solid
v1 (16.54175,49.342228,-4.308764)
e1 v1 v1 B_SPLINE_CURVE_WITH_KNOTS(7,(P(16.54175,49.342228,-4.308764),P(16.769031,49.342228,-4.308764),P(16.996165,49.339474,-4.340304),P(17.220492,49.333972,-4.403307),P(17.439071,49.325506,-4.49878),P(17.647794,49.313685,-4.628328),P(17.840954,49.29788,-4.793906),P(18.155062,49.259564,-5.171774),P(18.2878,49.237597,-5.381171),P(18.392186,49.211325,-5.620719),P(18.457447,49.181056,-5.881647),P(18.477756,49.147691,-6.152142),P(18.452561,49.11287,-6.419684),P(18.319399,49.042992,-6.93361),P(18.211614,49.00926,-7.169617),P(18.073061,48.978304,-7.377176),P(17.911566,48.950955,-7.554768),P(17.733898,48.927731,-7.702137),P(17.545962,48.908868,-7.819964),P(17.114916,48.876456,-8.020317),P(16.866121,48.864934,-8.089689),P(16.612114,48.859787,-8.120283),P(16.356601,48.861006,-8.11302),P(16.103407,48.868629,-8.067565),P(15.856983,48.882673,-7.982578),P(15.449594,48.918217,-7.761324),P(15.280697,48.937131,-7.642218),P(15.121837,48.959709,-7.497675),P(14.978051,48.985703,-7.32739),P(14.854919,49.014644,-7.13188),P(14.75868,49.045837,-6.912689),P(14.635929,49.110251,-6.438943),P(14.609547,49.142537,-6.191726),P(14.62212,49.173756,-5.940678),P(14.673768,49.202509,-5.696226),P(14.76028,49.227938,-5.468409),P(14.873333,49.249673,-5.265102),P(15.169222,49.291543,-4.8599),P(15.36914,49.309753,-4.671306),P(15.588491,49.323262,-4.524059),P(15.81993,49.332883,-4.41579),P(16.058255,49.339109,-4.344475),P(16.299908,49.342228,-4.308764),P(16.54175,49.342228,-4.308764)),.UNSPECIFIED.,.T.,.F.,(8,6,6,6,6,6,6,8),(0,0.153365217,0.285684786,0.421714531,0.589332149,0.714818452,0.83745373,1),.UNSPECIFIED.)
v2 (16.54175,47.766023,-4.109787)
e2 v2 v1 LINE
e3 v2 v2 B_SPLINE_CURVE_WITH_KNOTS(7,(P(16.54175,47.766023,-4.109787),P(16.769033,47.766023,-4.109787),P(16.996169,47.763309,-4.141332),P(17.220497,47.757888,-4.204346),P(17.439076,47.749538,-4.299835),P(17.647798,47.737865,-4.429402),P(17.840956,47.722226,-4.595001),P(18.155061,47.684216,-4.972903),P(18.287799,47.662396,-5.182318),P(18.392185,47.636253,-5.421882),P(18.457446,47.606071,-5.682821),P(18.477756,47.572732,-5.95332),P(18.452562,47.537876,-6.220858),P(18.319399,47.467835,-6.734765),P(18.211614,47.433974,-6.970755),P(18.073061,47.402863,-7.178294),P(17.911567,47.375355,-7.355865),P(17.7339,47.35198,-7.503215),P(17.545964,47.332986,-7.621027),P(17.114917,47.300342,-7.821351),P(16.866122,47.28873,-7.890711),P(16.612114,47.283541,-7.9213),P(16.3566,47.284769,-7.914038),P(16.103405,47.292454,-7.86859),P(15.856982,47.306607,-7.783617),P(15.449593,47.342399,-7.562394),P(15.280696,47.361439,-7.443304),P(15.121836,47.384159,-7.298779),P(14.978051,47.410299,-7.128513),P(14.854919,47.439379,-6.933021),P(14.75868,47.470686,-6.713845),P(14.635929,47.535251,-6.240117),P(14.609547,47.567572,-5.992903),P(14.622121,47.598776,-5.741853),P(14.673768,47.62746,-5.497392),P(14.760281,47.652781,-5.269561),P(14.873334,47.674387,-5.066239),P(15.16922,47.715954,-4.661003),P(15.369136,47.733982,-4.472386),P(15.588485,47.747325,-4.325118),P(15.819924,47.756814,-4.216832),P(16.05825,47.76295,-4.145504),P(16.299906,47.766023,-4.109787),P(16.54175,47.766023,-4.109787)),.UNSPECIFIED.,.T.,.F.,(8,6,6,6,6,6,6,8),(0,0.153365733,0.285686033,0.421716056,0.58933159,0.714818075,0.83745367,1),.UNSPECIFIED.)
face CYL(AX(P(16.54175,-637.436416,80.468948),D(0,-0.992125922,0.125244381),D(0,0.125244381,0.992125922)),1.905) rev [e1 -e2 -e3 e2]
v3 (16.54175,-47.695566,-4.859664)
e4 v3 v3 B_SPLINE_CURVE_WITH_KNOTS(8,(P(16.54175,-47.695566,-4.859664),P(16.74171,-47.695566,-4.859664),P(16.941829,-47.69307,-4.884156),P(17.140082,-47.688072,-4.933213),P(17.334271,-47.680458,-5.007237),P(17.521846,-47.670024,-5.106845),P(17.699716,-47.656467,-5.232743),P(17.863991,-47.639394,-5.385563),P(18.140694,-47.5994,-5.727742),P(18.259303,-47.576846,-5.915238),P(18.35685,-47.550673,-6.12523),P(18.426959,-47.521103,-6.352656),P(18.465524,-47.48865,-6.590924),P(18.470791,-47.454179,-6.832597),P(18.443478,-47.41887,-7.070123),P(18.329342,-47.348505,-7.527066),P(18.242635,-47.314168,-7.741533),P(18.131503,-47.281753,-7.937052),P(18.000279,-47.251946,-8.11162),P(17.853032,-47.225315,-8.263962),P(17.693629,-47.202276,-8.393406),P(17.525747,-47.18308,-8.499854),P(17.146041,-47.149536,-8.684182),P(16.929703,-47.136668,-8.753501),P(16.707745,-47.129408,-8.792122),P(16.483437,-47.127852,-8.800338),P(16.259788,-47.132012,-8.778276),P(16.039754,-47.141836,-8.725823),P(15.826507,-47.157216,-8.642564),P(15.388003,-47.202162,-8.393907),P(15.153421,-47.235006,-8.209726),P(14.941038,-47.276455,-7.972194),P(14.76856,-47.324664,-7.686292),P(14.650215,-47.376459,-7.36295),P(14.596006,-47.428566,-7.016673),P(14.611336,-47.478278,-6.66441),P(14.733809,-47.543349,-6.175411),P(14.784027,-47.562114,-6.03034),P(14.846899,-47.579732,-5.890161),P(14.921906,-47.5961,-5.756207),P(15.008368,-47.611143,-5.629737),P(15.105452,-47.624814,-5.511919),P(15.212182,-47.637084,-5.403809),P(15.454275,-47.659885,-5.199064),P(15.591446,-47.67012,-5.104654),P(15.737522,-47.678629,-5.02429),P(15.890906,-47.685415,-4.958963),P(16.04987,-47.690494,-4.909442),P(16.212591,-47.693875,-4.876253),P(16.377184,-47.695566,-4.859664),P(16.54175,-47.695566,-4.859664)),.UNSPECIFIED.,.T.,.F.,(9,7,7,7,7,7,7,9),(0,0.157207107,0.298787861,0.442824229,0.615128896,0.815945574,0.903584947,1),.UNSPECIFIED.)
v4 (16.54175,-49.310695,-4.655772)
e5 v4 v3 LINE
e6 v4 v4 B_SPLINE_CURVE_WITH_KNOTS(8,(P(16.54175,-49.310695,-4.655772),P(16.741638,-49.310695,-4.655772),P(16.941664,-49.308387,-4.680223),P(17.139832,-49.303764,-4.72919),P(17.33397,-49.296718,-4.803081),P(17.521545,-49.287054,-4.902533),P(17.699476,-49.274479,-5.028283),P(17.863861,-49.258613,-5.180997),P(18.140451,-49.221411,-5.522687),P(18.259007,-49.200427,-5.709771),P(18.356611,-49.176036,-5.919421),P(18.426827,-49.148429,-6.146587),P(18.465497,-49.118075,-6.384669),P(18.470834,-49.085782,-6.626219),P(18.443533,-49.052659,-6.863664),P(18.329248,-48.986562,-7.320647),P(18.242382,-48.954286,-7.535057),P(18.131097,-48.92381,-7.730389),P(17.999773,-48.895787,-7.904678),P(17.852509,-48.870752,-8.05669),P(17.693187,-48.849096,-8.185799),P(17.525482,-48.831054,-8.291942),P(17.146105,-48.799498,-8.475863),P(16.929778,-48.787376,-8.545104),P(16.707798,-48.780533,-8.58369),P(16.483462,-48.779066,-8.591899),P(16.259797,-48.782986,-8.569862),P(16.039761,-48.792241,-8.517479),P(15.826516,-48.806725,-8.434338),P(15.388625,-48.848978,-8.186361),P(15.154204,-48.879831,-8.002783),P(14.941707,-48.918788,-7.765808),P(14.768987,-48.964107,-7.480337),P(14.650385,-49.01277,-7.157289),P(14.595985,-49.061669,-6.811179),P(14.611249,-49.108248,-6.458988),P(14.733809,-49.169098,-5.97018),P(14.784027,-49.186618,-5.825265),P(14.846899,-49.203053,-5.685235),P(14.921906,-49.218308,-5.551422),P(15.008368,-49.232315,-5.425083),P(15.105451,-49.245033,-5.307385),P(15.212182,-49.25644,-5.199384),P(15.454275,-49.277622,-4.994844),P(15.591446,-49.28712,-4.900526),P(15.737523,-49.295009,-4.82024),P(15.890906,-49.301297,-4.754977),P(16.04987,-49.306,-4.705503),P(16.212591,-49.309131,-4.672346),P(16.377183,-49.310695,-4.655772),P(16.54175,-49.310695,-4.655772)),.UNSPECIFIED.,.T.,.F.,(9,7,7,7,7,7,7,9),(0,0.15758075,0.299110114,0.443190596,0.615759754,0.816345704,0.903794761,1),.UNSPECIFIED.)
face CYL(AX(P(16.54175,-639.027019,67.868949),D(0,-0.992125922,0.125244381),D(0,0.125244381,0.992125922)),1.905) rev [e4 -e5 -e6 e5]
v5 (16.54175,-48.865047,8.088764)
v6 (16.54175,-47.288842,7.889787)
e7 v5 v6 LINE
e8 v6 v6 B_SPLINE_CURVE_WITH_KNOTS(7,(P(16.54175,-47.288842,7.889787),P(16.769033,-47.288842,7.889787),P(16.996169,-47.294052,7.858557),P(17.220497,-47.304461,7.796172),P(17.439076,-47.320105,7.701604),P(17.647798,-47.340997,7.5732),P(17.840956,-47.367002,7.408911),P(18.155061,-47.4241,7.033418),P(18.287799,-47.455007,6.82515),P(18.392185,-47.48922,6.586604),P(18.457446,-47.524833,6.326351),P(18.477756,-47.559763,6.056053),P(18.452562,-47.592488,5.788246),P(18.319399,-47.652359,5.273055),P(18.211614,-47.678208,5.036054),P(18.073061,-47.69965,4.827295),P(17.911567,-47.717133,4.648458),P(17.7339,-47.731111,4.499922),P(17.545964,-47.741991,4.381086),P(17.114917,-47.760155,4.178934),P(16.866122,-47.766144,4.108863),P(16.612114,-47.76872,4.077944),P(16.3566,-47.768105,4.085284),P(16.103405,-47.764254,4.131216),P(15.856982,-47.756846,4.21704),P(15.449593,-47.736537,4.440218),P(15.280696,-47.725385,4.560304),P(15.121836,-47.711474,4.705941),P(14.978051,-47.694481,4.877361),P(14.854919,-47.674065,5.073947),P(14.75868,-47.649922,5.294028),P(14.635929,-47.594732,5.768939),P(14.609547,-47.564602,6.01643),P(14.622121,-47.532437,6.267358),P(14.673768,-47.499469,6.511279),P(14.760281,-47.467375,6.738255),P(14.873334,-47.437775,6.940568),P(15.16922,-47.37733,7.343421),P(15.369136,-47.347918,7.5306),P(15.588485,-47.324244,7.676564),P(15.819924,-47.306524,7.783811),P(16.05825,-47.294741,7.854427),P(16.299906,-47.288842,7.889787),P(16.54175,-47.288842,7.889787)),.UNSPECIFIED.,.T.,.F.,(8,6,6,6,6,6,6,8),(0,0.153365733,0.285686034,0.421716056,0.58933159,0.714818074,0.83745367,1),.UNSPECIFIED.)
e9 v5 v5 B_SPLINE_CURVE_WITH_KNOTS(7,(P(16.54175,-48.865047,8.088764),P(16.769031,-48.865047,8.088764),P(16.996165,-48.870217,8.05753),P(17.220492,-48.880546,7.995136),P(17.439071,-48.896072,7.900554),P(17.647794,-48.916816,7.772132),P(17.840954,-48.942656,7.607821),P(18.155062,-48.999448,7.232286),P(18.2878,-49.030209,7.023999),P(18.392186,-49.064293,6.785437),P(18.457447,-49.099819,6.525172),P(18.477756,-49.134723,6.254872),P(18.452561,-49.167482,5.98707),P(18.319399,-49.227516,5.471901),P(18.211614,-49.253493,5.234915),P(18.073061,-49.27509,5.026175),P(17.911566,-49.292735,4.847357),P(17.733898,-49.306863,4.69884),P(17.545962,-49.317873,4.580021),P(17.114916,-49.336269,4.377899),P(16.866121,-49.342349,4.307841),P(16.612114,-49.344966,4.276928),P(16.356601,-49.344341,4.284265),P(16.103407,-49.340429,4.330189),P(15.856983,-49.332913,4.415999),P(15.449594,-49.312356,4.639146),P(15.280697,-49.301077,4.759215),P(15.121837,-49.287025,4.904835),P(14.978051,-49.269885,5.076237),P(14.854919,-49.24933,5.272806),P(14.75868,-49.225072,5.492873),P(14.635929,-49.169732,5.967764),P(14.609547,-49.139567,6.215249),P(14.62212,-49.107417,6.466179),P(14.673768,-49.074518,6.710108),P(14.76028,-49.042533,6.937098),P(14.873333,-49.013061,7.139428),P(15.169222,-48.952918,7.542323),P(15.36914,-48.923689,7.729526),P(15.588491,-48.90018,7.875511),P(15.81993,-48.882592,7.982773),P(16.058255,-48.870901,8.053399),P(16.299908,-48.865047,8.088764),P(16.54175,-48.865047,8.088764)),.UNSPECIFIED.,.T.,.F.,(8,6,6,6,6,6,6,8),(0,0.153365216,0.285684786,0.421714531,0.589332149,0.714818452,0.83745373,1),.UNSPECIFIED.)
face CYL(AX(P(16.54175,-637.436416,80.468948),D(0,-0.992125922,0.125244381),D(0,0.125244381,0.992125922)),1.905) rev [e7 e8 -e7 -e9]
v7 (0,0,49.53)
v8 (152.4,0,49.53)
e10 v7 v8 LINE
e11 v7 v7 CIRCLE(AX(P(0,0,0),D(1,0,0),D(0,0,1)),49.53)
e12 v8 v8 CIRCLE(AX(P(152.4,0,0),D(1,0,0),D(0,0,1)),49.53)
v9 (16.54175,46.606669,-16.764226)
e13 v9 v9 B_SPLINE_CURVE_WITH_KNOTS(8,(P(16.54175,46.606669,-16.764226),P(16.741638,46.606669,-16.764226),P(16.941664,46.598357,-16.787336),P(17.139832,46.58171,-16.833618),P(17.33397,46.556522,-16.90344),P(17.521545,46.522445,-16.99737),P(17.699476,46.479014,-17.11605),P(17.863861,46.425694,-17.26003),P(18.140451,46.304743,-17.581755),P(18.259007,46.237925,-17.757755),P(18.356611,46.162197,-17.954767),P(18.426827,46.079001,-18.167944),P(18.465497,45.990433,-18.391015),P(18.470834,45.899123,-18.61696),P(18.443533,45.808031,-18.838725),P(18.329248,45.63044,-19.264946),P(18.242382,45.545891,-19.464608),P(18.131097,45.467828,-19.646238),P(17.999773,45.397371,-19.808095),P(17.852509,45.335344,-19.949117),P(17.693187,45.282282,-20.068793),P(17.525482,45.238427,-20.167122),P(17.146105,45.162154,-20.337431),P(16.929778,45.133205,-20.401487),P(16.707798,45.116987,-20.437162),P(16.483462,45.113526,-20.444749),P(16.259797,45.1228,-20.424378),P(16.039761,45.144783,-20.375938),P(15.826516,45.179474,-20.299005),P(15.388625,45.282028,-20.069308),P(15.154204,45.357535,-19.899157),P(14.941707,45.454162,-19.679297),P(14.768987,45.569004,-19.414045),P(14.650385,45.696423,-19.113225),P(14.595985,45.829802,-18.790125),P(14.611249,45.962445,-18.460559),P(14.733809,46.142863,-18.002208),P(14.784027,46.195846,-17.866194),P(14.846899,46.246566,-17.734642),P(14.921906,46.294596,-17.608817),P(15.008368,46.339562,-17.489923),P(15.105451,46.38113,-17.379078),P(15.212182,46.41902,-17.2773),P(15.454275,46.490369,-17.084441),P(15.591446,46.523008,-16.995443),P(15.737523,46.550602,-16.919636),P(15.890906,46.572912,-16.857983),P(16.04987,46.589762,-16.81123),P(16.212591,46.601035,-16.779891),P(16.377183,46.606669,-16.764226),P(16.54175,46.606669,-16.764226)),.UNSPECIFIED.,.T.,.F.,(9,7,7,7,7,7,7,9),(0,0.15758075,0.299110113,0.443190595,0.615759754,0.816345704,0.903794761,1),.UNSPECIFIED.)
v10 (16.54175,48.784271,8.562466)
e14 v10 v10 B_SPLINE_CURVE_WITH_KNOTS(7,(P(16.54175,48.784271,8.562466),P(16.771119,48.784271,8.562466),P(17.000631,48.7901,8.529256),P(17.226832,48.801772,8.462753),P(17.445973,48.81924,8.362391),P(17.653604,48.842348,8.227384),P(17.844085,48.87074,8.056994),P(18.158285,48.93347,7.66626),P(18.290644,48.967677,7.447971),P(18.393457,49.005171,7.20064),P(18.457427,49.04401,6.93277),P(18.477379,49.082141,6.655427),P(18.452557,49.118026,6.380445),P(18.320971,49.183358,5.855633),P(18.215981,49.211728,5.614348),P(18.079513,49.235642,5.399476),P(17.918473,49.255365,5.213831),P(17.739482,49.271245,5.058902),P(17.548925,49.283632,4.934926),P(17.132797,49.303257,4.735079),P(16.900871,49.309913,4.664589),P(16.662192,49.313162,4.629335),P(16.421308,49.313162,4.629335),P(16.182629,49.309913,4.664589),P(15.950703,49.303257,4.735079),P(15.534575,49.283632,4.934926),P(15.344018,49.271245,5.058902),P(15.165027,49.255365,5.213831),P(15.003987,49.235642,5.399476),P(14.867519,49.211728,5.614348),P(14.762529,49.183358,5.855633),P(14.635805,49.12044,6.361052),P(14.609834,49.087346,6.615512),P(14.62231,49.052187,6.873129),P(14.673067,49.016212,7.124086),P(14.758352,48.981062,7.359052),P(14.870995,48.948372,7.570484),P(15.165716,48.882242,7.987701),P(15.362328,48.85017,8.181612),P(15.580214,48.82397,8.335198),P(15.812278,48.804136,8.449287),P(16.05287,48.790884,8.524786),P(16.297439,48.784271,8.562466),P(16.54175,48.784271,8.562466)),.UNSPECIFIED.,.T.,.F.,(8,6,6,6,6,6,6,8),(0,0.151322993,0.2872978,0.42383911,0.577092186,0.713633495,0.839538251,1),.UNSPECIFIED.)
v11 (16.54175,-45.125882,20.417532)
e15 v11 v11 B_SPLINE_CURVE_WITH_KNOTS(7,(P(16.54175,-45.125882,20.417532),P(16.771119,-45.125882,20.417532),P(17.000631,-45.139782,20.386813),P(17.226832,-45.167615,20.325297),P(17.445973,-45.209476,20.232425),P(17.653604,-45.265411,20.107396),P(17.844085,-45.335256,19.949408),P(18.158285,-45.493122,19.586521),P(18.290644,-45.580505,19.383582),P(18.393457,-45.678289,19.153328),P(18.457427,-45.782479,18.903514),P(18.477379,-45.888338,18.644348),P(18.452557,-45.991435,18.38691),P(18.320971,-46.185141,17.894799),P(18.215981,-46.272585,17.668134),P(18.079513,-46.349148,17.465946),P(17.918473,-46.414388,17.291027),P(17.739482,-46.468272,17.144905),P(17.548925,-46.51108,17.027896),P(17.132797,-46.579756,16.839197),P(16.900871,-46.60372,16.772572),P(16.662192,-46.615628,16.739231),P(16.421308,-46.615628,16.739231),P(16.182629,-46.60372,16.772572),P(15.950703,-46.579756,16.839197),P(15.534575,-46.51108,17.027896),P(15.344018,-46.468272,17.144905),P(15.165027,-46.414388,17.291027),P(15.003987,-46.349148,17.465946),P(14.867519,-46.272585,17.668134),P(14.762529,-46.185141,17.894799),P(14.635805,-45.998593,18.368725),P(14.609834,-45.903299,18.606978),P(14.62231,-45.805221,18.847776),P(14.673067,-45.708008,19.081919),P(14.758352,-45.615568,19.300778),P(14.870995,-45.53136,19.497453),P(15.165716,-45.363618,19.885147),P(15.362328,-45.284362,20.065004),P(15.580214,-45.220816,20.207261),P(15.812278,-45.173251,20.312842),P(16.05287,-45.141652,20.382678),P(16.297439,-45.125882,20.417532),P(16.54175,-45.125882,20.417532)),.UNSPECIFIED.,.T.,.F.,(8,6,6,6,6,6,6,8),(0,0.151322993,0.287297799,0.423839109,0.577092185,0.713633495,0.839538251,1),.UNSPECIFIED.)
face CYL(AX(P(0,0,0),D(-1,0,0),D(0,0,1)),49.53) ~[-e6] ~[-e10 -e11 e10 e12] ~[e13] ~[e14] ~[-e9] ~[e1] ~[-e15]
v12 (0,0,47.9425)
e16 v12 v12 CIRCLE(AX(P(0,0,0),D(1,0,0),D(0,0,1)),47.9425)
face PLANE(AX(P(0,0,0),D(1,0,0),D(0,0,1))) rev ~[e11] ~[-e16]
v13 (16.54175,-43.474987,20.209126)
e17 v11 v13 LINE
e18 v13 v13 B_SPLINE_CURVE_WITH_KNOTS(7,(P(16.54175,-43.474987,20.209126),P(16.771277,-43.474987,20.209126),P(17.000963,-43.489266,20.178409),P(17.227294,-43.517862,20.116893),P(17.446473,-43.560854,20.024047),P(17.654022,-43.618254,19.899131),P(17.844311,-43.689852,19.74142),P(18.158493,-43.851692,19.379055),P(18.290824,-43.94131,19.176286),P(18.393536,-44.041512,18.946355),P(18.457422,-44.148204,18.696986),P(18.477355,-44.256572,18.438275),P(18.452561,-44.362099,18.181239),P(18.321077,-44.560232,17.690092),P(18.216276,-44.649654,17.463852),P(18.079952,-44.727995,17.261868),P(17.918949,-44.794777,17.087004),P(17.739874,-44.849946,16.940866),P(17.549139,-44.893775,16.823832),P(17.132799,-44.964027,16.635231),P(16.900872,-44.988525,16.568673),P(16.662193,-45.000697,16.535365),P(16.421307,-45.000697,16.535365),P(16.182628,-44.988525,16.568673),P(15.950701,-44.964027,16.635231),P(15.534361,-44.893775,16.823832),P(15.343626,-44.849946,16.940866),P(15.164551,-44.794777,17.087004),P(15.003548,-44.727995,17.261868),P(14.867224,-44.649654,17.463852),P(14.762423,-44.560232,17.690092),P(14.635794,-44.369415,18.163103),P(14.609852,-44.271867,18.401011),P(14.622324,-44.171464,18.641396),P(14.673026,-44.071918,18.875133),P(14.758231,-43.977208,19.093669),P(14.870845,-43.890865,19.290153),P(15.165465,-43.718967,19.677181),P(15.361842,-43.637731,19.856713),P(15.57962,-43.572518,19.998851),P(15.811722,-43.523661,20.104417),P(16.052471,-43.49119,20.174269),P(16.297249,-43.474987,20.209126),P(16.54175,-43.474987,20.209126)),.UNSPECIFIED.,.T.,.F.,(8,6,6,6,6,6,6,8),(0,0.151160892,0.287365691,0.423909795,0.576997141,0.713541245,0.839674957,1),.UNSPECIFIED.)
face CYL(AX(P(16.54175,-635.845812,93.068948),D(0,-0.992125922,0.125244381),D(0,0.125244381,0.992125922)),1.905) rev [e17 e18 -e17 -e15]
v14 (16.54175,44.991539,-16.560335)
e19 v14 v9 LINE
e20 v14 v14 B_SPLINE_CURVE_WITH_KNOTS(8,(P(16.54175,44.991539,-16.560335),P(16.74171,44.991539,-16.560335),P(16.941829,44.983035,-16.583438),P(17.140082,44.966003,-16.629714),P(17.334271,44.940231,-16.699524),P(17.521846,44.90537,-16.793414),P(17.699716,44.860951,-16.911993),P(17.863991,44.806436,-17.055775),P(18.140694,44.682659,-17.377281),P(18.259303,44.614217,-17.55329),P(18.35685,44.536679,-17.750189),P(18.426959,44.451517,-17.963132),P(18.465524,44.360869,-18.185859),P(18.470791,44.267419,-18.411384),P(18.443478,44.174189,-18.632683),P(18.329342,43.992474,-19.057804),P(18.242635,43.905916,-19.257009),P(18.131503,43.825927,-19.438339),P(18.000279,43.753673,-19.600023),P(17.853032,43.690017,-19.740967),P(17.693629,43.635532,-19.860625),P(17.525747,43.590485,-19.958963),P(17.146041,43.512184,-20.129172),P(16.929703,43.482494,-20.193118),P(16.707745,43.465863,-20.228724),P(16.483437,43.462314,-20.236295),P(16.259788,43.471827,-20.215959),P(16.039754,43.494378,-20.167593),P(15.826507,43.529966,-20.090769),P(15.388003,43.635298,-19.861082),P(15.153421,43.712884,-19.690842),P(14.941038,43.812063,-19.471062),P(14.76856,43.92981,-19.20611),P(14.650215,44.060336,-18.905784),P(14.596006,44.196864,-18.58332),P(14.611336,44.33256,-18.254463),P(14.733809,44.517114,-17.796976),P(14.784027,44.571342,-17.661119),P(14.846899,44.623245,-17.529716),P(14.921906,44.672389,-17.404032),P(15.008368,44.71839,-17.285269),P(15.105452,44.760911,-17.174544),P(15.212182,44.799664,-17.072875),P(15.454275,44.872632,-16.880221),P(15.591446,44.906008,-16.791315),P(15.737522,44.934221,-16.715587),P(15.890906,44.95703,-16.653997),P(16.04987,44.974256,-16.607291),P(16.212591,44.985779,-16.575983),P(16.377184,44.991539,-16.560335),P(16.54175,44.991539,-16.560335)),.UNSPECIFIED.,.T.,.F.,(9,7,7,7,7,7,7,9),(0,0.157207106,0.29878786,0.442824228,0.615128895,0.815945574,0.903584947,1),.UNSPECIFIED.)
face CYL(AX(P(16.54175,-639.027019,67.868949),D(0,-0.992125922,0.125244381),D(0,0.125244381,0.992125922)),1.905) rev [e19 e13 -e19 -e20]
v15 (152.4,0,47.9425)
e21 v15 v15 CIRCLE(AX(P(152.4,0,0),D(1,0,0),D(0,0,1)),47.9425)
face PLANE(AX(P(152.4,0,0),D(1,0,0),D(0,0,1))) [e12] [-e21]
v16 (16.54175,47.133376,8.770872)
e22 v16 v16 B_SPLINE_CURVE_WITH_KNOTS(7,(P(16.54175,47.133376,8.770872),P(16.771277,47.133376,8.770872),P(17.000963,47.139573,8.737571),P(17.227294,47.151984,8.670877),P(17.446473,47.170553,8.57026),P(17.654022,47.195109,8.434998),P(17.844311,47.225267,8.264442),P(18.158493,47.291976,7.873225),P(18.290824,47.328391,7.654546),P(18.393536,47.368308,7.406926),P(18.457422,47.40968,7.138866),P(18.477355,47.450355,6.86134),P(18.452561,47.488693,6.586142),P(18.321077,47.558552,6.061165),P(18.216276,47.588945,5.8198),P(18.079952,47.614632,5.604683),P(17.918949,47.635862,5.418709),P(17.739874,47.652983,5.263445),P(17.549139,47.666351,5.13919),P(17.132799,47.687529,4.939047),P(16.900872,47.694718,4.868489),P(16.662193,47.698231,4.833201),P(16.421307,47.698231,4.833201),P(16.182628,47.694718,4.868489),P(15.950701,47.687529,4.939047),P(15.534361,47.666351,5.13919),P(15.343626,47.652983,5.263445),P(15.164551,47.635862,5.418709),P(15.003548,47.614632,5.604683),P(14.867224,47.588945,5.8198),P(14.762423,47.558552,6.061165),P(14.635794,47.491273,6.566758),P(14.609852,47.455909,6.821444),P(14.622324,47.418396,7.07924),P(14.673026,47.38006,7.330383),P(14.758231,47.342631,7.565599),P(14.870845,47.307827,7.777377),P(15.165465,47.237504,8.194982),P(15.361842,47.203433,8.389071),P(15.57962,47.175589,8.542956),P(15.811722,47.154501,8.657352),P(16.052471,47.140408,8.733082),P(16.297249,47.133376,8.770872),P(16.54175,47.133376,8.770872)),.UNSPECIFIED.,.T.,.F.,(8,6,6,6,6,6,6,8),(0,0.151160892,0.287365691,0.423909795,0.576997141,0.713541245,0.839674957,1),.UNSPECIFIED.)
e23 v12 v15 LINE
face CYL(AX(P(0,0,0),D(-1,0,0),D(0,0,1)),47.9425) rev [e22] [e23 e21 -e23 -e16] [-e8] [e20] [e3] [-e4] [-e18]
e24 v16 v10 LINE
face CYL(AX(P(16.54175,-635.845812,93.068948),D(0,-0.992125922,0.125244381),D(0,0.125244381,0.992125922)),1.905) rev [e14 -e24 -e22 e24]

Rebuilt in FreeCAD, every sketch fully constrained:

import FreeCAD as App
import Part
import Sketcher
Q = App.Units.Quantity

doc = App.newDocument("Part")
body = doc.addObject("PartDesign::Body", "Body")

sketch1 = body.newObject("Sketcher::SketchObject", "Sketch")
sketch1.AttachmentSupport = (doc.getObject("YZ_Plane"), [""])
sketch1.MapMode = "FlatFace"
sketch1.addGeometry([
    Part.Circle(App.Vector(0, 0, 0), App.Vector(0, 0, 1), 50),
    Part.Circle(App.Vector(0, 0, 0), App.Vector(0, 0, 1), 48),
], False)
sketch1.addConstraint([
    Sketcher.Constraint("Coincident", 0, 3, -1, 1),
    Sketcher.Constraint("Coincident", 1, 3, -1, 1),
    Sketcher.Constraint("Diameter", 0, Q("3.9 in")),
    Sketcher.Constraint("Diameter", 1, Q("3.775 in")),
])
pad1 = body.newObject("PartDesign::Pad", "Pad")
pad1.Profile = sketch1
pad1.Length = Q("6 in")

sketch2 = body.newObject("Sketcher::SketchObject", "Sketch001")
sketch2.Placement = App.Placement(App.Vector(-485.259786, 0, 0), App.Rotation(App.Vector(0, 0.125244381, 0.992125922), App.Vector(1, 0, 0), App.Vector(0, 0.992125922, -0.125244381), "ZXY"))
sketch2.addGeometry([
    Part.Circle(App.Vector(12.7, 501.8, 0), App.Vector(0, 0, 1), 1.9),
    Part.Circle(App.Vector(0, 501.8, 0), App.Vector(0, 0, 1), 1.9),
    Part.Circle(App.Vector(-12.7, 501.8, 0), App.Vector(0, 0, 1), 1.9),
], False)
sketch2.addConstraint([
    Sketcher.Constraint("Equal", 0, 1),
    Sketcher.Constraint("Equal", 1, 2),
    Sketcher.Constraint("Symmetric", 0, 3, 2, 3, -2),
    Sketcher.Constraint("PointOnObject", 1, 3, -2),
    Sketcher.Constraint("Horizontal", 0, 3, 1, 3),
    Sketcher.Constraint("Diameter", 0, Q("0.15 in")),
    Sketcher.Constraint("DistanceX", 2, 3, 0, 3, Q("1 in")),
    Sketcher.Constraint("DistanceY", -1, 1, 0, 3, 501.801536),
])
pocket1 = body.newObject("PartDesign::Pocket", "Pocket")
pocket1.Profile = sketch2
pocket1.Type = "ThroughAll"
pocket1.Midplane = True

doc.recompute()
